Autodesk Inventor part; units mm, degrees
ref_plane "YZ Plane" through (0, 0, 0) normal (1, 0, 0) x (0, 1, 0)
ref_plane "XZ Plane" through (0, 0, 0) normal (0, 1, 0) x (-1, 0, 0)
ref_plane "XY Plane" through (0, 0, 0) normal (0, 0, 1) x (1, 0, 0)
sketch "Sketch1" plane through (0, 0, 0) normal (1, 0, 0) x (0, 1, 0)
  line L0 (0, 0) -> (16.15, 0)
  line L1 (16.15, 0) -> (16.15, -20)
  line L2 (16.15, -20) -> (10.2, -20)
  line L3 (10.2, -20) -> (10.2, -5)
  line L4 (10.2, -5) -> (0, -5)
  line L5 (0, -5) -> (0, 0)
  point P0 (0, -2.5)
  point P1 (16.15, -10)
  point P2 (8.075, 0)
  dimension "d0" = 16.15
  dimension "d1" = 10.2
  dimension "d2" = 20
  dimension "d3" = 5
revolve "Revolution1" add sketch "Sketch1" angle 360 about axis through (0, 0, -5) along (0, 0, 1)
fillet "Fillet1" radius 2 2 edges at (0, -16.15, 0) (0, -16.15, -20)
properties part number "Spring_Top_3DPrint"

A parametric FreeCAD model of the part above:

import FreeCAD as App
import Part
import Sketcher


def edges_at(feature, points):
    """Names of the edges that pass closest to the given points."""
    edges = feature.Shape.Edges
    near = lambda p: min(range(len(edges)), key=lambda i: edges[i].distToShape(Part.Vertex(*p))[0])
    return sorted({f"Edge{near(p) + 1}" for p in points})


def add_polygon(sketch, points):
    """Adds a closed chain of lines whose ends are joined by coincident constraints."""
    first, n = sketch.GeometryCount, len(points)
    for a, b in zip(points, points[1:] + points[:1]):
        sketch.addGeometry(Part.LineSegment(App.Vector(*a, 0), App.Vector(*b, 0)), False)
    for i in range(n):
        sketch.addConstraint(Sketcher.Constraint("Coincident", first + i, 2, first + (i + 1) % n, 1))

doc = App.newDocument("Part")
body = doc.addObject("PartDesign::Body", "Body")

# Sketch on YZ plane
sketch1 = doc.addObject("Sketcher::SketchObject", "Sketch")
body.addObject(sketch1)
sketch1.AttachmentSupport = (doc.YZ_Plane, [""])
sketch1.MapMode = "FlatFace"
add_polygon(sketch1, [(16.15, 0), (0, 0), (0, -5), (10.2, -5), (10.2, -20), (16.15, -20)])  # lines 0-5
sketch1.addConstraint([
    Sketcher.Constraint("Horizontal", 0),
    Sketcher.Constraint("Vertical", 1),
    Sketcher.Constraint("Horizontal", 2),
    Sketcher.Constraint("Vertical", 3),
    Sketcher.Constraint("Horizontal", 4),
    Sketcher.Constraint("Vertical", 5),
    Sketcher.Constraint("Coincident", 0, 2, -1, 1),
    Sketcher.Constraint("DistanceY", 1, 2, 1, 1, 5.0),
    Sketcher.Constraint("DistanceY", 5, 1, 5, 2, 20.0),
    Sketcher.Constraint("DistanceX", 2, 1, 2, 2, 10.2),
    Sketcher.Constraint("DistanceX", 0, 2, 0, 1, 16.15),
])
revolution = doc.addObject("PartDesign::Revolution", "Revolution")
body.addObject(revolution)
revolution.Profile = sketch1
revolution.ReferenceAxis = (sketch1, ["V_Axis"])
revolution.Angle = 360
doc.recompute()

fillet = doc.addObject("PartDesign::Fillet", "Fillet")
body.addObject(fillet)
fillet.Base = (revolution, edges_at(revolution, [(0, -16.15, 0), (0, -16.15, -20)]))
fillet.Radius = 2

doc.recompute()
